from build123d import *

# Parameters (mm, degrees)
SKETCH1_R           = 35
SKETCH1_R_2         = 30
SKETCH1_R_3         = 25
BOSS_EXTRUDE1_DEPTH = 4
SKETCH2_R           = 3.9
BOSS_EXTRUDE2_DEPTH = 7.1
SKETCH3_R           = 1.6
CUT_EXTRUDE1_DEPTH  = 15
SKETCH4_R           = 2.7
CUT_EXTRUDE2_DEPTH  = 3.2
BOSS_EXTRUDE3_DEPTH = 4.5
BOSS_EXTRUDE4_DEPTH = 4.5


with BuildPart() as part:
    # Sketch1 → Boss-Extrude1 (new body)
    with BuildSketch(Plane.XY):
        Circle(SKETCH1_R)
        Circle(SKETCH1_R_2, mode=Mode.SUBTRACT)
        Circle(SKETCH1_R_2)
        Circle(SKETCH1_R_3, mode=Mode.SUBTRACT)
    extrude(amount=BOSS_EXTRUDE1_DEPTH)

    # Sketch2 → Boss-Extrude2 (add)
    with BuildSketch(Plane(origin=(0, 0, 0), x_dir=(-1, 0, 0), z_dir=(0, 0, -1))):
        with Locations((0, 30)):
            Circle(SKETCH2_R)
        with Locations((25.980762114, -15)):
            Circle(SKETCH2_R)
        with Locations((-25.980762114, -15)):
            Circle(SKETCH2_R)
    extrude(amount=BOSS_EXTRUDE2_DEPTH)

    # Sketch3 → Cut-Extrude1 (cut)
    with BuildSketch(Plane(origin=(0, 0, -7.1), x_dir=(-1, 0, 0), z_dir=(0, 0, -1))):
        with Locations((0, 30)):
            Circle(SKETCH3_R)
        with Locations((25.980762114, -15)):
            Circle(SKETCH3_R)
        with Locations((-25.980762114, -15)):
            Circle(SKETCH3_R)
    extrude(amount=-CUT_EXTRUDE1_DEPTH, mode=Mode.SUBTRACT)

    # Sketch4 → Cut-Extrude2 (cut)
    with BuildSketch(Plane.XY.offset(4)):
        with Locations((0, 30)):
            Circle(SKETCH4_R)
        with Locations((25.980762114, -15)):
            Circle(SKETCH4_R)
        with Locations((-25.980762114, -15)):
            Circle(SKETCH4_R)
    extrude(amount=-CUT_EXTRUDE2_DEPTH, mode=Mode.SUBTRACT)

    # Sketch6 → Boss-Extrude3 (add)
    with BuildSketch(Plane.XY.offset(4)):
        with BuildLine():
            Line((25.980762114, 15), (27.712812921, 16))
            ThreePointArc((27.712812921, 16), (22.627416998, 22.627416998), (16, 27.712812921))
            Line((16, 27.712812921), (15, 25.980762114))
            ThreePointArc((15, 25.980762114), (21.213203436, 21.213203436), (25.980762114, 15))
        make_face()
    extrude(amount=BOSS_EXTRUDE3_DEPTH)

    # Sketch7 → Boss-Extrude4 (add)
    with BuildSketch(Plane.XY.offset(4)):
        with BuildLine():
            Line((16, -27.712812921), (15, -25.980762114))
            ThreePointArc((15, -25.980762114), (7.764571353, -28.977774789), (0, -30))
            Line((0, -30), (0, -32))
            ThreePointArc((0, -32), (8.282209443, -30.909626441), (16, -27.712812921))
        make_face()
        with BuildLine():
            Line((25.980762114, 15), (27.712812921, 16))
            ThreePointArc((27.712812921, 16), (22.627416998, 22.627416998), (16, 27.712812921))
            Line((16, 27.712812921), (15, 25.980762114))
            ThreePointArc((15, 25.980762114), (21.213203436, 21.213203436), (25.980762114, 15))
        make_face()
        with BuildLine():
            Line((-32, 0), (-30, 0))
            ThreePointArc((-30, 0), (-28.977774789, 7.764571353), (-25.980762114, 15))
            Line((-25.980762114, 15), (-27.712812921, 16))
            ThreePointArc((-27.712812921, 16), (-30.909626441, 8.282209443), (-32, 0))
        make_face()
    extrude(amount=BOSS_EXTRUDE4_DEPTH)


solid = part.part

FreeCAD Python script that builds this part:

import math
import FreeCAD as App
import Part
import Sketcher

V = App.Vector
Q = App.Units.Quantity

doc = App.newDocument("Part")
body = doc.addObject("PartDesign::Body", "Body")

# Sketch on XY plane
sketch1 = body.newObject("Sketcher::SketchObject", "Sketch")
sketch1.AttachmentSupport = (doc.getObject("XY_Plane"), [""])
sketch1.MapMode = "FlatFace"
sketch1.addGeometry([
    Part.Circle(V(0, 0, 0), V(0, 0, 1), 35),
    Part.Circle(V(0, 0, 0), V(0, 0, 1), 25),
], False)
sketch1.addConstraint([
    Sketcher.Constraint("Coincident", 0, 3, -1, 1),
    Sketcher.Constraint("Coincident", 1, 3, -1, 1),
    Sketcher.Constraint("Diameter", 0, Q("70 mm")),
    Sketcher.Constraint("Diameter", 1, Q("50 mm")),
])
pad1 = body.newObject("PartDesign::Pad", "Pad")
pad1.Profile = sketch1
pad1.Length = 4

# Sketch on XY plane
sketch2 = body.newObject("Sketcher::SketchObject", "Sketch001")
sketch2.AttachmentSupport = (doc.getObject("XY_Plane"), [""])
sketch2.MapMode = "FlatFace"
sketch2.addGeometry([
    Part.Circle(V(0, 30, 0), V(0, 0, 1), 3.9),
    Part.Circle(V(-26, -15, 0), V(0, 0, 1), 3.9),
    Part.Circle(V(26, -15, 0), V(0, 0, 1), 3.9),
], False)
sketch2.addConstraint([
    Sketcher.Constraint("Equal", 0, 1),
    Sketcher.Constraint("Equal", 1, 2),
    Sketcher.Constraint("Symmetric", 1, 3, 2, 3, -2),
    Sketcher.Constraint("PointOnObject", 0, 3, -2),
    Sketcher.Constraint("Diameter", 0, Q("7.8 mm")),
    Sketcher.Constraint("DistanceY", -1, 1, 0, 3, Q("30 mm")),
    Sketcher.Constraint("DistanceY", 1, 3, -1, 1, Q("15 mm")),
    Sketcher.Constraint("DistanceX", 1, 3, -1, 1, Q("25.980762 mm")),
])
pad2 = body.newObject("PartDesign::Pad", "Pad001")
pad2.Profile = sketch2
pad2.Length = 7.1
pad2.Reversed = True

# Sketch on XY plane
sketch3 = body.newObject("Sketcher::SketchObject", "Sketch002")
sketch3.AttachmentSupport = (doc.getObject("XY_Plane"), [""])
sketch3.MapMode = "FlatFace"
sketch3.AttachmentOffset = App.Placement(V(0, 0, -7.1), App.Rotation())
sketch3.addGeometry([
    Part.Circle(V(0, 30, 0), V(0, 0, 1), 1.6),
    Part.Circle(V(-26, -15, 0), V(0, 0, 1), 1.6),
    Part.Circle(V(26, -15, 0), V(0, 0, 1), 1.6),
], False)
sketch3.addConstraint([
    Sketcher.Constraint("Equal", 0, 1),
    Sketcher.Constraint("Equal", 1, 2),
    Sketcher.Constraint("Symmetric", 1, 3, 2, 3, -2),
    Sketcher.Constraint("PointOnObject", 0, 3, -2),
    Sketcher.Constraint("Diameter", 0, Q("3.2 mm")),
    Sketcher.Constraint("DistanceY", -1, 1, 0, 3, Q("30 mm")),
    Sketcher.Constraint("DistanceY", 1, 3, -1, 1, Q("15 mm")),
    Sketcher.Constraint("DistanceX", 1, 3, -1, 1, Q("25.980762 mm")),
])
pocket1 = body.newObject("PartDesign::Pocket", "Pocket")
pocket1.Profile = sketch3
pocket1.Length = 15
pocket1.Reversed = True

# Sketch on XY plane
sketch4 = body.newObject("Sketcher::SketchObject", "Sketch003")
sketch4.AttachmentSupport = (doc.getObject("XY_Plane"), [""])
sketch4.MapMode = "FlatFace"
sketch4.AttachmentOffset = App.Placement(V(0, 0, 4), App.Rotation())
sketch4.addGeometry([
    Part.Circle(V(0, 30, 0), V(0, 0, 1), 2.7),
    Part.Circle(V(26, -15, 0), V(0, 0, 1), 2.7),
    Part.Circle(V(-26, -15, 0), V(0, 0, 1), 2.7),
], False)
sketch4.addConstraint([
    Sketcher.Constraint("Equal", 0, 1),
    Sketcher.Constraint("Equal", 1, 2),
    Sketcher.Constraint("Symmetric", 1, 3, 2, 3, -2),
    Sketcher.Constraint("PointOnObject", 0, 3, -2),
    Sketcher.Constraint("Diameter", 0, Q("5.4 mm")),
    Sketcher.Constraint("DistanceY", -1, 1, 0, 3, Q("30 mm")),
    Sketcher.Constraint("DistanceY", 1, 3, -1, 1, Q("15 mm")),
    Sketcher.Constraint("DistanceX", -1, 1, 1, 3, Q("25.980762 mm")),
])
pocket2 = body.newObject("PartDesign::Pocket", "Pocket001")
pocket2.Profile = sketch4
pocket2.Length = 3.2

# Sketch on XY plane
sketch5 = body.newObject("Sketcher::SketchObject", "Sketch004")
sketch5.AttachmentSupport = (doc.getObject("XY_Plane"), [""])
sketch5.MapMode = "FlatFace"
sketch5.AttachmentOffset = App.Placement(V(0, 0, 4), App.Rotation())
sketch5.addGeometry([
    Part.LineSegment(V(26, 15, 0), V(27.7, 16, 0)),
    Part.ArcOfCircle(Part.Circle(V(0, 0, 0), V(0, 0, 1), 32), math.radians(30), math.radians(60)),
    Part.LineSegment(V(16, 27.7, 0), V(15, 26, 0)),
    Part.ArcOfCircle(Part.Circle(V(0, 0, 0), V(0, 0, 1), 30), math.radians(30), math.radians(60)),
], False)
sketch5.addConstraint([
    Sketcher.Constraint("Coincident", 0, 2, 1, 1),
    Sketcher.Constraint("Coincident", 1, 2, 2, 1),
    Sketcher.Constraint("Coincident", 2, 2, 3, 2),
    Sketcher.Constraint("Coincident", 3, 1, 0, 1),
    Sketcher.Constraint("Coincident", 1, 3, -1, 1),
    Sketcher.Constraint("Coincident", 3, 3, -1, 1),
    Sketcher.Constraint("Radius", 1, Q("32 mm")),
    Sketcher.Constraint("Radius", 3, Q("30 mm")),
    Sketcher.Constraint("Angle", 0, Q("30 deg")),
    Sketcher.Constraint("Angle", 2, Q("-120 deg")),
    Sketcher.Constraint("DistanceY", -1, 1, 0, 2, Q("16 mm")),
    Sketcher.Constraint("DistanceX", -1, 1, 1, 2, Q("16 mm")),
])
pad3 = body.newObject("PartDesign::Pad", "Pad002")
pad3.Profile = sketch5
pad3.Length = 4.5

# Sketch on XY plane
sketch6 = body.newObject("Sketcher::SketchObject", "Sketch005")
sketch6.AttachmentSupport = (doc.getObject("XY_Plane"), [""])
sketch6.MapMode = "FlatFace"
sketch6.AttachmentOffset = App.Placement(V(0, 0, 4), App.Rotation())
sketch6.addGeometry([
    Part.LineSegment(V(16, -27.7, 0), V(15, -26, 0)),  # 0
    Part.ArcOfCircle(Part.Circle(V(0, 0, 0), V(0, 0, 1), 30), math.radians(-90), math.radians(-60)),  # 1
    Part.LineSegment(V(0, -30, 0), V(0, -32, 0)),  # 2
    Part.ArcOfCircle(Part.Circle(V(0, 0, 0), V(0, 0, 1), 32), math.radians(-90), math.radians(-60)),  # 3
    Part.LineSegment(V(26, 15, 0), V(27.7, 16, 0)),  # 4
    Part.ArcOfCircle(Part.Circle(V(0, 0, 0), V(0, 0, 1), 32), math.radians(30), math.radians(60)),  # 5
    Part.LineSegment(V(16, 27.7, 0), V(15, 26, 0)),  # 6
    Part.ArcOfCircle(Part.Circle(V(0, 0, 0), V(0, 0, 1), 30), math.radians(30), math.radians(60)),  # 7
    Part.LineSegment(V(-32, 0, 0), V(-30, 0, 0)),  # 8
    Part.ArcOfCircle(Part.Circle(V(0, 0, 0), V(0, 0, 1), 30), math.radians(150), math.radians(180)),  # 9
    Part.LineSegment(V(-26, 15, 0), V(-27.7, 16, 0)),  # 10
    Part.ArcOfCircle(Part.Circle(V(0, 0, 0), V(0, 0, 1), 32), math.radians(150), math.radians(180)),  # 11
], False)
sketch6.addConstraint([
    Sketcher.Constraint("Coincident", 0, 2, 1, 2),
    Sketcher.Constraint("Coincident", 1, 1, 2, 1),
    Sketcher.Constraint("Coincident", 2, 2, 3, 1),
    Sketcher.Constraint("Coincident", 3, 2, 0, 1),
    Sketcher.Constraint("Coincident", 4, 2, 5, 1),
    Sketcher.Constraint("Coincident", 5, 2, 6, 1),
    Sketcher.Constraint("Coincident", 6, 2, 7, 2),
    Sketcher.Constraint("Coincident", 7, 1, 4, 1),
    Sketcher.Constraint("Coincident", 8, 2, 9, 2),
    Sketcher.Constraint("Coincident", 9, 1, 10, 1),
    Sketcher.Constraint("Coincident", 10, 2, 11, 1),
    Sketcher.Constraint("Coincident", 11, 2, 8, 1),
    Sketcher.Constraint("Vertical", 2),
    Sketcher.Constraint("Horizontal", 8),
    Sketcher.Constraint("Coincident", 1, 3, -1, 1),
    Sketcher.Constraint("Coincident", 3, 3, -1, 1),
    Sketcher.Constraint("Coincident", 5, 3, -1, 1),
    Sketcher.Constraint("Coincident", 7, 3, -1, 1),
    Sketcher.Constraint("Coincident", 9, 3, -1, 1),
    Sketcher.Constraint("Coincident", 11, 3, -1, 1),
    Sketcher.Constraint("Equal", 3, 5),
    Sketcher.Constraint("Equal", 1, 7),
    Sketcher.Constraint("Equal", 7, 9),
    Sketcher.Constraint("Equal", 5, 11),
    Sketcher.Constraint("PointOnObject", 1, 1, -2),
    Sketcher.Constraint("PointOnObject", 8, 2, -1),
    Sketcher.Constraint("Perpendicular", 0, 4),
    Sketcher.Constraint("Perpendicular", 6, 10),
    Sketcher.Constraint("Horizontal", 7, 1, 9, 1),
    Sketcher.Constraint("Horizontal", 4, 2, 10, 2),
    Sketcher.Constraint("Vertical", 3, 2, 5, 2),
    Sketcher.Constraint("Radius", 1, Q("30 mm")),
    Sketcher.Constraint("Radius", 3, Q("32 mm")),
    Sketcher.Constraint("Angle", 0, Q("120 deg")),
    Sketcher.Constraint("DistanceX", -1, 1, 0, 2, Q("15 mm")),
    Sketcher.Constraint("DistanceY", -1, 1, 4, 2, Q("16 mm")),
])
pad4 = body.newObject("PartDesign::Pad", "Pad003")
pad4.Profile = sketch6
pad4.Length = 4.5

doc.recompute()
